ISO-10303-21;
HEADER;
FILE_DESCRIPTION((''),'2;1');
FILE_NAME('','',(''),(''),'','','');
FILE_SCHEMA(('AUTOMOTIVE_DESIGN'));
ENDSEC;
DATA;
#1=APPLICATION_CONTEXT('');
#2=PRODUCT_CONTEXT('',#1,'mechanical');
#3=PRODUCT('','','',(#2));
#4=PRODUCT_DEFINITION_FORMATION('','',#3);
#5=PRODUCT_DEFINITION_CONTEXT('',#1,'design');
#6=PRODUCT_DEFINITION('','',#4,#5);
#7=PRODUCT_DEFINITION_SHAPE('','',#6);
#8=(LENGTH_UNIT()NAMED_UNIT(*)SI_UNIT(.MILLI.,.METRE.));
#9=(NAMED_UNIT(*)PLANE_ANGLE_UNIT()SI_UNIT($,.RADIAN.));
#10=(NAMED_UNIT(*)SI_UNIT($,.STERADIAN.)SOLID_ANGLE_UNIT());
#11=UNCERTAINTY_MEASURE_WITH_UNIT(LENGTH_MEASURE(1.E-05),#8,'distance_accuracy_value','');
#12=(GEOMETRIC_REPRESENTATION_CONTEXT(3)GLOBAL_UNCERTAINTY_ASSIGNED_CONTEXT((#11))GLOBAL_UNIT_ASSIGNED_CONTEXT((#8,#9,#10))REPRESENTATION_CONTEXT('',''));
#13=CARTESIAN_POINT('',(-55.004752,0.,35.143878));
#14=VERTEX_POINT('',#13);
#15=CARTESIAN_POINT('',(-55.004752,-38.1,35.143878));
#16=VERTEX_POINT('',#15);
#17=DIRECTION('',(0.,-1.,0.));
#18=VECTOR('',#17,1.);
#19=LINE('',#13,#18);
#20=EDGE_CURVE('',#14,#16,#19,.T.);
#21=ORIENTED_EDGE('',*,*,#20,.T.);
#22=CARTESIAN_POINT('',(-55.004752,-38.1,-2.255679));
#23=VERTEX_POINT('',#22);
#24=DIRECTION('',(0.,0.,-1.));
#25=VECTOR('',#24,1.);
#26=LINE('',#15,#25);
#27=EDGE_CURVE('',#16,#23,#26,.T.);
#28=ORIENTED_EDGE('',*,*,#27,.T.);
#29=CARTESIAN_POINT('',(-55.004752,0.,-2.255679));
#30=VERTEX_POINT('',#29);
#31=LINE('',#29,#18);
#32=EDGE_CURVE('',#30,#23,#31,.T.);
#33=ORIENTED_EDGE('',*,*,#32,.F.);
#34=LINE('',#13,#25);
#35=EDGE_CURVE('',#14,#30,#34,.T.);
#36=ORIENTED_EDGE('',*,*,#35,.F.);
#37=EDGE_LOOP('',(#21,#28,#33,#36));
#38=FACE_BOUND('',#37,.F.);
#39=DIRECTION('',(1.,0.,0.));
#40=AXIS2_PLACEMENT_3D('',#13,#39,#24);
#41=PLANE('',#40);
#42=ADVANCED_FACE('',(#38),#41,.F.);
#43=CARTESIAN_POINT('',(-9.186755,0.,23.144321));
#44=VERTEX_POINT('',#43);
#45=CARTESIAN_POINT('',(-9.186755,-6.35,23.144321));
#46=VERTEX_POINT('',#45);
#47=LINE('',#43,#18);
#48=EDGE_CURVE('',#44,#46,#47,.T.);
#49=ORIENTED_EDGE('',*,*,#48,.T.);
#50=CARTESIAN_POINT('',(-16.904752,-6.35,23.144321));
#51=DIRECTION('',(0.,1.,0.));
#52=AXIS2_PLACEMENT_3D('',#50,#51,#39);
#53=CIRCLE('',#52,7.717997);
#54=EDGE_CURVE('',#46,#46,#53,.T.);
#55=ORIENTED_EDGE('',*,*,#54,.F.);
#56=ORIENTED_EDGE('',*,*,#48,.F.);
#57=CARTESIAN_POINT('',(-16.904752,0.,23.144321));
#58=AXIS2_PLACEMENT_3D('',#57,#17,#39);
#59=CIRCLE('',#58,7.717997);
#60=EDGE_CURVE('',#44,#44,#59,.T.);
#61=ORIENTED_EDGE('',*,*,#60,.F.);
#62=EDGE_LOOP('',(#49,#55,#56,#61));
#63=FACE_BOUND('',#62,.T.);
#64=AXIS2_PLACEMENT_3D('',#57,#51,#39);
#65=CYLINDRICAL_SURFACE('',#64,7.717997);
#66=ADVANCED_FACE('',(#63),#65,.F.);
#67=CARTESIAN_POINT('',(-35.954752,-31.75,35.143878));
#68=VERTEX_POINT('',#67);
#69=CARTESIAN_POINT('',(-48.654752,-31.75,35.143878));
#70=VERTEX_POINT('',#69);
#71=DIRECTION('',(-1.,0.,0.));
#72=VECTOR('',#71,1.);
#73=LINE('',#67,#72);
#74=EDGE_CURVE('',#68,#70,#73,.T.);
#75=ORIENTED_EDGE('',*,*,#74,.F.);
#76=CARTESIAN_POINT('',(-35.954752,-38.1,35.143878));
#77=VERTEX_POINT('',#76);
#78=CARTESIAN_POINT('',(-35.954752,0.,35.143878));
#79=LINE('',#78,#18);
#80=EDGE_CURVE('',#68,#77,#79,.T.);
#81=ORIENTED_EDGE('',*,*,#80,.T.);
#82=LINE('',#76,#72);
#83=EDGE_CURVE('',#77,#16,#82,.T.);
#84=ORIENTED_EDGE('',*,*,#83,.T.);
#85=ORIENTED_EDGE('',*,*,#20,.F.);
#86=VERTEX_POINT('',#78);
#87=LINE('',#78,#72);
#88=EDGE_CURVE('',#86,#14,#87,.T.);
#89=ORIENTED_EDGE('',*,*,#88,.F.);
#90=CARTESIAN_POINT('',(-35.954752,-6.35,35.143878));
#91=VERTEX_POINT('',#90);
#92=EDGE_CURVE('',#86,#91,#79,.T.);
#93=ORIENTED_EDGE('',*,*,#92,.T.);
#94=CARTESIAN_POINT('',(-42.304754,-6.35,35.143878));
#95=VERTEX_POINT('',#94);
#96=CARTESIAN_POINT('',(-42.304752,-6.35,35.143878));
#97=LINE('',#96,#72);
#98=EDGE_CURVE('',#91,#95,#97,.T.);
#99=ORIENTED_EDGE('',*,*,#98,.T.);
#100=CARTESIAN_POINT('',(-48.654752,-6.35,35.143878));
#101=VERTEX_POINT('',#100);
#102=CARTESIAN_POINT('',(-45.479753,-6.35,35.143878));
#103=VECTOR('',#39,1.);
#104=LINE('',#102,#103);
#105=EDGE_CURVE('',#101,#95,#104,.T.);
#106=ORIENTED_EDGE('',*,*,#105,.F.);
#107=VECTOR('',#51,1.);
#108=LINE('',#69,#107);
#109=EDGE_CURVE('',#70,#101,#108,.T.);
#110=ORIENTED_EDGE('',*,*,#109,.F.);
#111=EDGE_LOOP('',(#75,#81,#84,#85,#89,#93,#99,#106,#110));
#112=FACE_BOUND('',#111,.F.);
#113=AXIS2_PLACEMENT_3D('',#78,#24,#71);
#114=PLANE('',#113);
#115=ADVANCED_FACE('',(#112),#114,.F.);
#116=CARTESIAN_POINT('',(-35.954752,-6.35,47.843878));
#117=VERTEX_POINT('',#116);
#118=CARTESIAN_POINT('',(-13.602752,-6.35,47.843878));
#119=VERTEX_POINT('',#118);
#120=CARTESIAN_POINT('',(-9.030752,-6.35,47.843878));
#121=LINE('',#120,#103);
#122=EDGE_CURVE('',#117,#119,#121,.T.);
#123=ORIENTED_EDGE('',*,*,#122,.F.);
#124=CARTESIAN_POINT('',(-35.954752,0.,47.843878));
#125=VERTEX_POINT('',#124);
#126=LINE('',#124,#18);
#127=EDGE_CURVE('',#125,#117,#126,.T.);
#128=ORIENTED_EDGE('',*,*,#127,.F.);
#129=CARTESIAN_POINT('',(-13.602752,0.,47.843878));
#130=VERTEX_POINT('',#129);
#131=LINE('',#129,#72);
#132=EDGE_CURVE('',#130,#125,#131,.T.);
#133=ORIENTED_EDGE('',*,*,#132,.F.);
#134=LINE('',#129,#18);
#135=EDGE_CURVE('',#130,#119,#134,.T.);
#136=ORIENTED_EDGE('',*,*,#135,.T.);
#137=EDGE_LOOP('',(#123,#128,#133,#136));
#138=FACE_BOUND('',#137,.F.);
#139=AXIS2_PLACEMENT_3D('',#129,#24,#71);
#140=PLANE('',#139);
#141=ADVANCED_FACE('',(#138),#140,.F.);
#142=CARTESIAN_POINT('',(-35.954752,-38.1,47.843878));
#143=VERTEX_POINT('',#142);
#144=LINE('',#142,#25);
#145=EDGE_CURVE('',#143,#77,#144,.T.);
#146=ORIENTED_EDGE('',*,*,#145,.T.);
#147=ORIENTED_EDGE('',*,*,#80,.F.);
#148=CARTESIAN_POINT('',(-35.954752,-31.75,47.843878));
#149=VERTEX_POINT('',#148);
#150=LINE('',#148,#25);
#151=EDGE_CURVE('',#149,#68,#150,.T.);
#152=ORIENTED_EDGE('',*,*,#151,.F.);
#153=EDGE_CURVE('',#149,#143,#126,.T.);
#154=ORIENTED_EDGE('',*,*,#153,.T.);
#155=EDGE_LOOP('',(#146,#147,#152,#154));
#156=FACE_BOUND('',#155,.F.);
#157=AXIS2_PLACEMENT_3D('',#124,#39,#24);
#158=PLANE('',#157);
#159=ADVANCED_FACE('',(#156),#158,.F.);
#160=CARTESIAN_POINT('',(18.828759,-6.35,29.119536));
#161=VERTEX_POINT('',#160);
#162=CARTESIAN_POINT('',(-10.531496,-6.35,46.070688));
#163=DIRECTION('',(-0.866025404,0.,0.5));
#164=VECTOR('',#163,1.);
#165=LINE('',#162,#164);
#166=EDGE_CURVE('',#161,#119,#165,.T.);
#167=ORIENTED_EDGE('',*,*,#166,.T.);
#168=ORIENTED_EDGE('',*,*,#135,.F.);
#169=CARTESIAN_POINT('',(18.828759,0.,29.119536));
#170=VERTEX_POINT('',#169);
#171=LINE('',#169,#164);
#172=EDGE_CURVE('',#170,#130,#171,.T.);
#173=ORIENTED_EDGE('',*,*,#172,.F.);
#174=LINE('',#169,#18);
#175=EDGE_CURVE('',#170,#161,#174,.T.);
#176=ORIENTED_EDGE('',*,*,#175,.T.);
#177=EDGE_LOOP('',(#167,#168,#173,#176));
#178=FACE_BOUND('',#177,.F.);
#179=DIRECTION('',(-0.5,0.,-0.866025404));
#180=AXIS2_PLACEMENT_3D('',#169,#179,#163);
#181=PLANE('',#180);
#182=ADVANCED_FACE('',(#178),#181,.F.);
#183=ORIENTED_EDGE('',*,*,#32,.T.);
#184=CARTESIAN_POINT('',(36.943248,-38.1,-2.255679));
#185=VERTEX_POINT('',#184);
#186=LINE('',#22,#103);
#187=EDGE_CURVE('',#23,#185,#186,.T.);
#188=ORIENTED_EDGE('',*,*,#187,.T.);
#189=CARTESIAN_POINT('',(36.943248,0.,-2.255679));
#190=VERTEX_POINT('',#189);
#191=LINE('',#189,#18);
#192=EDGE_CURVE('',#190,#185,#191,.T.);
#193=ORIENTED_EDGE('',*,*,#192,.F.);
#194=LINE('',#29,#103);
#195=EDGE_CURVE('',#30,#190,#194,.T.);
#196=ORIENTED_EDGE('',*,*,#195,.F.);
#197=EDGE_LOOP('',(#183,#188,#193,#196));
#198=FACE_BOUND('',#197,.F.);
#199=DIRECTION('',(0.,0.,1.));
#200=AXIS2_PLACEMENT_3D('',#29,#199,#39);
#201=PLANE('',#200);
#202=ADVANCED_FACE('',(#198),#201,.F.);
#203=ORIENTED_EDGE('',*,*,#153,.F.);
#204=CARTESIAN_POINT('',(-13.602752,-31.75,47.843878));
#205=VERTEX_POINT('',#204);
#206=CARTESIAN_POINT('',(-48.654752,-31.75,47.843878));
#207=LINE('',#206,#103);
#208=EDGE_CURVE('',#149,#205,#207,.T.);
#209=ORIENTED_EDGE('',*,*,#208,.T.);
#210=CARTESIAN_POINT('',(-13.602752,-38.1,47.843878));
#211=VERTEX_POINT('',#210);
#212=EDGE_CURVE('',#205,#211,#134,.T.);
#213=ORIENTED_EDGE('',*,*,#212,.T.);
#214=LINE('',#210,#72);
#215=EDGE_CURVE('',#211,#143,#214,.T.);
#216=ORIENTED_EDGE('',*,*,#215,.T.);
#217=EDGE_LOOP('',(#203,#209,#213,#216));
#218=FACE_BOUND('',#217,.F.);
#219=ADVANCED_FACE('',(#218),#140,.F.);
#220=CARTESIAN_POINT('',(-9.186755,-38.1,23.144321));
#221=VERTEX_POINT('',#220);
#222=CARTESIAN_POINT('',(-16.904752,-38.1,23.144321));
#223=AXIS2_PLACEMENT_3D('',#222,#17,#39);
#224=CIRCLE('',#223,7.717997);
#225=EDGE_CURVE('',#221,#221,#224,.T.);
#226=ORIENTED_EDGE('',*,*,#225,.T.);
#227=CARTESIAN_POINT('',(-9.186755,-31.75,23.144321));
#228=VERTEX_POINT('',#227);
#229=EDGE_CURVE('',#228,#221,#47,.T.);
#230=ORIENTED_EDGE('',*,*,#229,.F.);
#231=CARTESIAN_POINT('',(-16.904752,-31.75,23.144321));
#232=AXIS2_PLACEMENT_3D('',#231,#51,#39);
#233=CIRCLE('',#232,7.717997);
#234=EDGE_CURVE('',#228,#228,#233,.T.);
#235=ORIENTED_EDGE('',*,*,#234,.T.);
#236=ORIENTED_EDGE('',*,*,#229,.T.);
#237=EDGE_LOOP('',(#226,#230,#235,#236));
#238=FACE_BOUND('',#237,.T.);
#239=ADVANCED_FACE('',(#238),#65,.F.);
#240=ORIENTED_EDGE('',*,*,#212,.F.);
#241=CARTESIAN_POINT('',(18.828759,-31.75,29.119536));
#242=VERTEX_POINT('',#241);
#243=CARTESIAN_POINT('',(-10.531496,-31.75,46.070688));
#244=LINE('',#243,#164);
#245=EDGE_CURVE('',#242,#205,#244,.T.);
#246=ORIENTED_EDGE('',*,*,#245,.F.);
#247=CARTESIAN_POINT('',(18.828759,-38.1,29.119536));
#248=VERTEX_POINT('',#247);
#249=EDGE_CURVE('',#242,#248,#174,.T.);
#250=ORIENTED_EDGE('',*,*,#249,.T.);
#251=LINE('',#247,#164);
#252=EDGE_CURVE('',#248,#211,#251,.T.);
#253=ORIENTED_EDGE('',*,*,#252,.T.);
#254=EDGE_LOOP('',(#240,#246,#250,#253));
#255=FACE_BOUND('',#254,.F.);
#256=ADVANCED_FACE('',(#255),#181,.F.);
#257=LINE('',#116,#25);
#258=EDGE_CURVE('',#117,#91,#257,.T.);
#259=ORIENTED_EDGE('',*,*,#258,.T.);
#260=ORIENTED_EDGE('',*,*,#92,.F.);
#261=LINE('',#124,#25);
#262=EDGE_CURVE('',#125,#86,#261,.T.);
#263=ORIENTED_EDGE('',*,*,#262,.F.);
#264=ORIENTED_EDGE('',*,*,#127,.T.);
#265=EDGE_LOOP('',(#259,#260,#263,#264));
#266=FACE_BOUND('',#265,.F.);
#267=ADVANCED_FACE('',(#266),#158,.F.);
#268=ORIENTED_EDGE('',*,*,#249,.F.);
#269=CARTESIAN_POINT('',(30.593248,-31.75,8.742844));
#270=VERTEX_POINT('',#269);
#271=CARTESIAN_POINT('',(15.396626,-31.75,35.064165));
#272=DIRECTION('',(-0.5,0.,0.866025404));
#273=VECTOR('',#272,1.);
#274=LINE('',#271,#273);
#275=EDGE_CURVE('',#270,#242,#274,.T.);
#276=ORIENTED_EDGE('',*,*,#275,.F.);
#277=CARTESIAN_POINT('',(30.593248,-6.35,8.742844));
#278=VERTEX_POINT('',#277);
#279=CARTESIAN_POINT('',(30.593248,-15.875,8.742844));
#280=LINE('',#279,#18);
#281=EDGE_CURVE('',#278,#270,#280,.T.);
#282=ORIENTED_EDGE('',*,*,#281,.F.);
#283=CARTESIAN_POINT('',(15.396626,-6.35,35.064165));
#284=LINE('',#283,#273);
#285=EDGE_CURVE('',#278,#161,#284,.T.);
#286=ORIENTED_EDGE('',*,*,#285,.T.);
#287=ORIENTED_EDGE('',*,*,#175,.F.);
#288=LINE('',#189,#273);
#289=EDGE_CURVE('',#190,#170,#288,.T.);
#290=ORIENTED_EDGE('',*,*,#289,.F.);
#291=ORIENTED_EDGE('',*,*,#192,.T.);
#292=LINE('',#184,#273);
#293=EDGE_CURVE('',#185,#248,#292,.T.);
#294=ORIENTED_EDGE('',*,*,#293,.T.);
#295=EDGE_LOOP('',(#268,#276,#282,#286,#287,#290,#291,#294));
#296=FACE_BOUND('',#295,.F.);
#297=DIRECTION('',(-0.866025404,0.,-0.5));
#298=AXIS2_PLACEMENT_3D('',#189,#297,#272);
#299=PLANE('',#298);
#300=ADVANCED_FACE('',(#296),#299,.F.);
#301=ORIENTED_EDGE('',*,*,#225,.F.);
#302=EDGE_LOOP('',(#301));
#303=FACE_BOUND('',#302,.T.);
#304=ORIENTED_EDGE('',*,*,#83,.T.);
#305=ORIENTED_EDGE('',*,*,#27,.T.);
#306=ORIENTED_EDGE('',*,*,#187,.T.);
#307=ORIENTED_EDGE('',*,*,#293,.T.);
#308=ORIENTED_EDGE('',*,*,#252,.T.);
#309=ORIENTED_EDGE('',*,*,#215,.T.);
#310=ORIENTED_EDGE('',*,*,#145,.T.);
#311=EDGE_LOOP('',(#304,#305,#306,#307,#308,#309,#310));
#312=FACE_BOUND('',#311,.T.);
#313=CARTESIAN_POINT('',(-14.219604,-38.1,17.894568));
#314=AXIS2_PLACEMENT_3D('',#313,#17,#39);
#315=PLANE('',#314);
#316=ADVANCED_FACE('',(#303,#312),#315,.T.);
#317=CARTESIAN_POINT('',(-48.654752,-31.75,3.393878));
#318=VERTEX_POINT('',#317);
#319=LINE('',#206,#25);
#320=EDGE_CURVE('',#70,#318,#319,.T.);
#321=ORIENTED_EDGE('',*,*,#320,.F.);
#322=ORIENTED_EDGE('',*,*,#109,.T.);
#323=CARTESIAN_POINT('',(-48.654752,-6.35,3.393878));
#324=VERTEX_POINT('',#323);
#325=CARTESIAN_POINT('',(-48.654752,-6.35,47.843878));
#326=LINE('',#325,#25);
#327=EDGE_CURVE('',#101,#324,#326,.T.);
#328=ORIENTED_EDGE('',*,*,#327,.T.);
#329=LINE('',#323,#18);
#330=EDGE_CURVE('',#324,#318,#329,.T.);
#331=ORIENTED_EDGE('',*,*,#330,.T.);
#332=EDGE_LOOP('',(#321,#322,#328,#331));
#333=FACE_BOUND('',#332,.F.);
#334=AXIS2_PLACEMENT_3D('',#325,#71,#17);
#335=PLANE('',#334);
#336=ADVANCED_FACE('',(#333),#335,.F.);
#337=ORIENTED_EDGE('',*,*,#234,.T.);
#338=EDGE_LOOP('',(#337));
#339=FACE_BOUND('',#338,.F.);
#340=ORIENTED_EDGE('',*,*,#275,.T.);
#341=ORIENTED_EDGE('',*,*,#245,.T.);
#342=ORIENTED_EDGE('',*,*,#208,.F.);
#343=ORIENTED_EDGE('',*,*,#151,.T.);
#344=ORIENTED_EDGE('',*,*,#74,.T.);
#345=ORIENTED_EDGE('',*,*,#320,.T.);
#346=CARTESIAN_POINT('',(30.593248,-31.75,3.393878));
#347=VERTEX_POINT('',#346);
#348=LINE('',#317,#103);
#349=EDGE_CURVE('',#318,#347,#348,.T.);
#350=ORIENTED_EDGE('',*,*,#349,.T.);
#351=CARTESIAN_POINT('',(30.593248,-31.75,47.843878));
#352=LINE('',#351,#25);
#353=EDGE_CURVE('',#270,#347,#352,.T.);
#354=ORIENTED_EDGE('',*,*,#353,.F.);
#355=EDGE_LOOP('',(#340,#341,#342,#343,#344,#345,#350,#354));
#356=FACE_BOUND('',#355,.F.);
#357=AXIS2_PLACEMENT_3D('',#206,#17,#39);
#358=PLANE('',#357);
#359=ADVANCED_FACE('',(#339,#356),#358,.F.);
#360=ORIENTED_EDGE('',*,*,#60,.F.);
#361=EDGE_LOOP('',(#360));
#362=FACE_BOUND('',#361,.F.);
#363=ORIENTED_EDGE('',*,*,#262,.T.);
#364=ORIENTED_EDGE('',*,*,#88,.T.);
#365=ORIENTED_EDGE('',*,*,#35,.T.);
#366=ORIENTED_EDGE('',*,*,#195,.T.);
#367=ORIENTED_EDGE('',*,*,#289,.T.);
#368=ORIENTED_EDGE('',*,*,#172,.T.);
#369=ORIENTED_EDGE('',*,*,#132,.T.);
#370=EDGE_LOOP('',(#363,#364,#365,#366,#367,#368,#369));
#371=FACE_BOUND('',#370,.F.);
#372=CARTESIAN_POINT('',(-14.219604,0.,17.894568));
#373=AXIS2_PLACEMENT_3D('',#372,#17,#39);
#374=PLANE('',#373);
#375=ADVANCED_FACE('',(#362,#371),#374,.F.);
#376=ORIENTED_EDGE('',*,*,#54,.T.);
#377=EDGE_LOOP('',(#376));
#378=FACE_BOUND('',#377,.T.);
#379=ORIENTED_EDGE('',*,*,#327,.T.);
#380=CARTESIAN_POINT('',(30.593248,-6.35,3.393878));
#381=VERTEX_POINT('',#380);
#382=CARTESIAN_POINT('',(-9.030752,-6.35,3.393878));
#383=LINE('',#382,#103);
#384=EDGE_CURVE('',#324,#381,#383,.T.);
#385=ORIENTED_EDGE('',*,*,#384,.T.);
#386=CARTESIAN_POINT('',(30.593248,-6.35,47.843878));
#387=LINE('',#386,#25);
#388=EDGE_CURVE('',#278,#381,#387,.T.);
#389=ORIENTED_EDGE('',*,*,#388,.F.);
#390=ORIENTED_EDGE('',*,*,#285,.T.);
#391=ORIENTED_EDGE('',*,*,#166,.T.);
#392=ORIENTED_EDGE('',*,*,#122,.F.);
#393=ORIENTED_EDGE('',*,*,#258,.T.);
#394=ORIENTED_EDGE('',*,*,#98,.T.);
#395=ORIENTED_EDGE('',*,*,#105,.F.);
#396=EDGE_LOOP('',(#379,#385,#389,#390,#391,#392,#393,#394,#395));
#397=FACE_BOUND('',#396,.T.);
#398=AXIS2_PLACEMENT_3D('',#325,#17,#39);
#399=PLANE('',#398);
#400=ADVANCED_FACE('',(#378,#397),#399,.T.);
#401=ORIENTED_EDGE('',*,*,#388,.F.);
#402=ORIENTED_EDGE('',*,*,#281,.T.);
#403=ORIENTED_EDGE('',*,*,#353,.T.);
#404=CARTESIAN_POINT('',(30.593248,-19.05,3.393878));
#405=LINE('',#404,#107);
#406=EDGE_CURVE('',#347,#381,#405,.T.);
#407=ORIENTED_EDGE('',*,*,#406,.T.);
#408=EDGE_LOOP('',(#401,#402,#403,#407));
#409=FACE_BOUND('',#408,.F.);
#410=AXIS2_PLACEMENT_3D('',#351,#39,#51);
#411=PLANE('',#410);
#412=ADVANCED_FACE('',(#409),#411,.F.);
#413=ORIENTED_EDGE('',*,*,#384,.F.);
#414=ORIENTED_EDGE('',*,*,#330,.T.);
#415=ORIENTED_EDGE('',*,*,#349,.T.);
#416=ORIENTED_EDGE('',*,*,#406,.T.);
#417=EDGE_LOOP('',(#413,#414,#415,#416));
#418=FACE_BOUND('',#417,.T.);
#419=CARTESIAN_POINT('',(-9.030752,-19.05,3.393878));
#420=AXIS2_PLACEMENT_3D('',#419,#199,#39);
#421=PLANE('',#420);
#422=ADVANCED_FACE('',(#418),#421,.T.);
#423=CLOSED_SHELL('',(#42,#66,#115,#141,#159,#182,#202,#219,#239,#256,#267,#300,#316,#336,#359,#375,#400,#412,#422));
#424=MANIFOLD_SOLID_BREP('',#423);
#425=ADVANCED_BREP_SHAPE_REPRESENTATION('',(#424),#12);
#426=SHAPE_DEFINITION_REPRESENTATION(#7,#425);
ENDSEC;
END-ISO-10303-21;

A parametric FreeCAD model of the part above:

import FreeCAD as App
import Part
import Sketcher
from FreeCAD import Vector
Q = App.Units.Quantity

doc = App.newDocument("Part")
body = doc.addObject("PartDesign::Body", "Body")

# Sketch on XZ plane
sketch1 = body.newObject("Sketcher::SketchObject", "Sketch")
sketch1.AttachmentSupport = (doc.getObject("XZ_Plane"), [""])
sketch1.MapMode = "FlatFace"
sketch1.addGeometry([
    Part.LineSegment(Vector(-14, 48, 0), Vector(-36, 48, 0)),  # 0
    Part.LineSegment(Vector(-36, 48, 0), Vector(-36, 35, 0)),  # 1
    Part.LineSegment(Vector(-36, 35, 0), Vector(-55, 35, 0)),  # 2
    Part.LineSegment(Vector(-55, 35, 0), Vector(-55, -2, 0)),  # 3
    Part.LineSegment(Vector(-55, -2, 0), Vector(37, -2, 0)),  # 4
    Part.LineSegment(Vector(37, -2, 0), Vector(19, 29, 0)),  # 5
    Part.LineSegment(Vector(19, 29, 0), Vector(-14, 48, 0)),  # 6
    Part.Circle(Vector(-17, 23, 0), Vector(0, 0, 1), 8),  # 7
], False)
sketch1.addConstraint([
    Sketcher.Constraint("Coincident", 0, 2, 1, 1),
    Sketcher.Constraint("Coincident", 1, 2, 2, 1),
    Sketcher.Constraint("Coincident", 2, 2, 3, 1),
    Sketcher.Constraint("Coincident", 3, 2, 4, 1),
    Sketcher.Constraint("Coincident", 4, 2, 5, 1),
    Sketcher.Constraint("Coincident", 5, 2, 6, 1),
    Sketcher.Constraint("Coincident", 6, 2, 0, 1),
    Sketcher.Constraint("Horizontal", 0),
    Sketcher.Constraint("Vertical", 1),
    Sketcher.Constraint("Horizontal", 2),
    Sketcher.Constraint("Vertical", 3),
    Sketcher.Constraint("Horizontal", 4),
    Sketcher.Constraint("DistanceY", 1, 2, 1, 1, Q("0.5 in")),
    Sketcher.Constraint("Angle", 5, Q("120 deg")),
    Sketcher.Constraint("Angle", 6, Q("150 deg")),
    Sketcher.Constraint("DistanceY", 3, 2, 7, 3, Q("1 in")),
    Sketcher.Constraint("DistanceX", 0, 2, 0, 1, Q("0.88 in")),
    Sketcher.Constraint("DistanceX", 2, 2, 2, 1, Q("0.75 in")),
    Sketcher.Constraint("DistanceX", 4, 1, 4, 2, Q("3.62 in")),
    Sketcher.Constraint("DistanceX", 2, 2, 7, 3, Q("1.5 in")),
    Sketcher.Constraint("Diameter", 7, Q("15.435994 mm")),
    Sketcher.Constraint("DistanceY", 3, 2, 3, 1, Q("37.399557 mm")),
    Sketcher.Constraint("DistanceX", 7, 3, -1, 1, Q("16.904752 mm")),
    Sketcher.Constraint("DistanceY", -1, 1, 7, 3, Q("23.144321 mm")),
])
pad1 = body.newObject("PartDesign::Pad", "Pad")
pad1.Profile = sketch1
pad1.Length = Q("1.5 in")

# Sketch on XY plane
sketch2 = body.newObject("Sketcher::SketchObject", "Sketch001")
sketch2.AttachmentSupport = (doc.getObject("XY_Plane"), [""])
sketch2.MapMode = "FlatFace"
sketch2.AttachmentOffset = App.Placement(Vector(0, 0, 35.143878), App.Rotation())
sketch2.addGeometry([
    Part.LineSegment(Vector(-48.7, -27.9, 0), Vector(-48.7, -31.8, 0)),  # 0
    Part.LineSegment(Vector(-48.7, -31.8, 0), Vector(-42.3, -31.8, 0)),  # 1
    Part.LineSegment(Vector(-42.3, -31.8, 0), Vector(-42.3, -27.9, 0)),  # 2
    Part.LineSegment(Vector(-42.3, -27.9, 0), Vector(-48.7, -27.9, 0)),  # 3
    Part.LineSegment(Vector(-48.7, -6.3, 0), Vector(-48.7, -11.7, 0)),  # 4
    Part.LineSegment(Vector(-48.7, -11.7, 0), Vector(-42.3, -11.7, 0)),  # 5
    Part.LineSegment(Vector(-42.3, -11.7, 0), Vector(-42.3, -6.3, 0)),  # 6
    Part.LineSegment(Vector(-42.3, -6.3, 0), Vector(-48.7, -6.3, 0)),  # 7
], False)
sketch2.addConstraint([
    Sketcher.Constraint("Coincident", 0, 2, 1, 1),
    Sketcher.Constraint("Coincident", 1, 2, 2, 1),
    Sketcher.Constraint("Coincident", 2, 2, 3, 1),
    Sketcher.Constraint("Coincident", 3, 2, 0, 1),
    Sketcher.Constraint("Coincident", 4, 2, 5, 1),
    Sketcher.Constraint("Coincident", 5, 2, 6, 1),
    Sketcher.Constraint("Coincident", 6, 2, 7, 1),
    Sketcher.Constraint("Coincident", 7, 2, 4, 1),
    Sketcher.Constraint("Vertical", 0),
    Sketcher.Constraint("Horizontal", 1),
    Sketcher.Constraint("Vertical", 2),
    Sketcher.Constraint("Horizontal", 3),
    Sketcher.Constraint("Vertical", 4),
    Sketcher.Constraint("Horizontal", 5),
    Sketcher.Constraint("Vertical", 6),
    Sketcher.Constraint("Horizontal", 7),
    Sketcher.Constraint("Vertical", 3, 2, 4, 2),
    Sketcher.Constraint("Vertical", 2, 2, 5, 2),
    Sketcher.Constraint("DistanceY", 1, 2, 6, 2, Q("1 in")),
    Sketcher.Constraint("DistanceX", 1, 1, 1, 2, Q("0.2499999 in")),
    Sketcher.Constraint("DistanceY", 0, 2, 0, 1, Q("0.1499999 in")),
    Sketcher.Constraint("DistanceY", 2, 2, -1, 1, Q("1.1000001 in")),
    Sketcher.Constraint("DistanceY", 4, 2, 4, 1, Q("0.2124999 in")),
    Sketcher.Constraint("DistanceX", 0, 2, -1, 1, Q("48.654752 mm")),
])
pad2 = body.newObject("PartDesign::Pad", "Pad001")
pad2.Profile = sketch2
pad2.Length = Q("0.5 in")

# Sketch on XY plane
sketch3 = body.newObject("Sketcher::SketchObject", "Sketch002")
sketch3.AttachmentSupport = (doc.getObject("XY_Plane"), [""])
sketch3.MapMode = "FlatFace"
sketch3.AttachmentOffset = App.Placement(Vector(0, 0, 47.843878), App.Rotation())
sketch3.addGeometry([
    Part.LineSegment(Vector(-49, -32, 0), Vector(31, -32, 0)),
    Part.LineSegment(Vector(31, -32, 0), Vector(31, -6, 0)),
    Part.LineSegment(Vector(31, -6, 0), Vector(-49, -6, 0)),
    Part.LineSegment(Vector(-49, -6, 0), Vector(-49, -32, 0)),
], False)
sketch3.addConstraint([
    Sketcher.Constraint("Coincident", 0, 2, 1, 1),
    Sketcher.Constraint("Coincident", 1, 2, 2, 1),
    Sketcher.Constraint("Coincident", 2, 2, 3, 1),
    Sketcher.Constraint("Coincident", 3, 2, 0, 1),
    Sketcher.Constraint("Horizontal", 0),
    Sketcher.Constraint("Vertical", 1),
    Sketcher.Constraint("Horizontal", 2),
    Sketcher.Constraint("Vertical", 3),
    Sketcher.Constraint("DistanceY", 1, 1, 1, 2, Q("1 in")),
    Sketcher.Constraint("DistanceX", 0, 1, 0, 2, Q("3.12 in")),
    Sketcher.Constraint("DistanceY", 0, 2, -1, 1, Q("1.25 in")),
    Sketcher.Constraint("DistanceX", -1, 1, 0, 2, Q("30.593248 mm")),
])
pocket1 = body.newObject("PartDesign::Pocket", "Pocket")
pocket1.Profile = sketch3
pocket1.Length = Q("1.75 in")

doc.recompute()
